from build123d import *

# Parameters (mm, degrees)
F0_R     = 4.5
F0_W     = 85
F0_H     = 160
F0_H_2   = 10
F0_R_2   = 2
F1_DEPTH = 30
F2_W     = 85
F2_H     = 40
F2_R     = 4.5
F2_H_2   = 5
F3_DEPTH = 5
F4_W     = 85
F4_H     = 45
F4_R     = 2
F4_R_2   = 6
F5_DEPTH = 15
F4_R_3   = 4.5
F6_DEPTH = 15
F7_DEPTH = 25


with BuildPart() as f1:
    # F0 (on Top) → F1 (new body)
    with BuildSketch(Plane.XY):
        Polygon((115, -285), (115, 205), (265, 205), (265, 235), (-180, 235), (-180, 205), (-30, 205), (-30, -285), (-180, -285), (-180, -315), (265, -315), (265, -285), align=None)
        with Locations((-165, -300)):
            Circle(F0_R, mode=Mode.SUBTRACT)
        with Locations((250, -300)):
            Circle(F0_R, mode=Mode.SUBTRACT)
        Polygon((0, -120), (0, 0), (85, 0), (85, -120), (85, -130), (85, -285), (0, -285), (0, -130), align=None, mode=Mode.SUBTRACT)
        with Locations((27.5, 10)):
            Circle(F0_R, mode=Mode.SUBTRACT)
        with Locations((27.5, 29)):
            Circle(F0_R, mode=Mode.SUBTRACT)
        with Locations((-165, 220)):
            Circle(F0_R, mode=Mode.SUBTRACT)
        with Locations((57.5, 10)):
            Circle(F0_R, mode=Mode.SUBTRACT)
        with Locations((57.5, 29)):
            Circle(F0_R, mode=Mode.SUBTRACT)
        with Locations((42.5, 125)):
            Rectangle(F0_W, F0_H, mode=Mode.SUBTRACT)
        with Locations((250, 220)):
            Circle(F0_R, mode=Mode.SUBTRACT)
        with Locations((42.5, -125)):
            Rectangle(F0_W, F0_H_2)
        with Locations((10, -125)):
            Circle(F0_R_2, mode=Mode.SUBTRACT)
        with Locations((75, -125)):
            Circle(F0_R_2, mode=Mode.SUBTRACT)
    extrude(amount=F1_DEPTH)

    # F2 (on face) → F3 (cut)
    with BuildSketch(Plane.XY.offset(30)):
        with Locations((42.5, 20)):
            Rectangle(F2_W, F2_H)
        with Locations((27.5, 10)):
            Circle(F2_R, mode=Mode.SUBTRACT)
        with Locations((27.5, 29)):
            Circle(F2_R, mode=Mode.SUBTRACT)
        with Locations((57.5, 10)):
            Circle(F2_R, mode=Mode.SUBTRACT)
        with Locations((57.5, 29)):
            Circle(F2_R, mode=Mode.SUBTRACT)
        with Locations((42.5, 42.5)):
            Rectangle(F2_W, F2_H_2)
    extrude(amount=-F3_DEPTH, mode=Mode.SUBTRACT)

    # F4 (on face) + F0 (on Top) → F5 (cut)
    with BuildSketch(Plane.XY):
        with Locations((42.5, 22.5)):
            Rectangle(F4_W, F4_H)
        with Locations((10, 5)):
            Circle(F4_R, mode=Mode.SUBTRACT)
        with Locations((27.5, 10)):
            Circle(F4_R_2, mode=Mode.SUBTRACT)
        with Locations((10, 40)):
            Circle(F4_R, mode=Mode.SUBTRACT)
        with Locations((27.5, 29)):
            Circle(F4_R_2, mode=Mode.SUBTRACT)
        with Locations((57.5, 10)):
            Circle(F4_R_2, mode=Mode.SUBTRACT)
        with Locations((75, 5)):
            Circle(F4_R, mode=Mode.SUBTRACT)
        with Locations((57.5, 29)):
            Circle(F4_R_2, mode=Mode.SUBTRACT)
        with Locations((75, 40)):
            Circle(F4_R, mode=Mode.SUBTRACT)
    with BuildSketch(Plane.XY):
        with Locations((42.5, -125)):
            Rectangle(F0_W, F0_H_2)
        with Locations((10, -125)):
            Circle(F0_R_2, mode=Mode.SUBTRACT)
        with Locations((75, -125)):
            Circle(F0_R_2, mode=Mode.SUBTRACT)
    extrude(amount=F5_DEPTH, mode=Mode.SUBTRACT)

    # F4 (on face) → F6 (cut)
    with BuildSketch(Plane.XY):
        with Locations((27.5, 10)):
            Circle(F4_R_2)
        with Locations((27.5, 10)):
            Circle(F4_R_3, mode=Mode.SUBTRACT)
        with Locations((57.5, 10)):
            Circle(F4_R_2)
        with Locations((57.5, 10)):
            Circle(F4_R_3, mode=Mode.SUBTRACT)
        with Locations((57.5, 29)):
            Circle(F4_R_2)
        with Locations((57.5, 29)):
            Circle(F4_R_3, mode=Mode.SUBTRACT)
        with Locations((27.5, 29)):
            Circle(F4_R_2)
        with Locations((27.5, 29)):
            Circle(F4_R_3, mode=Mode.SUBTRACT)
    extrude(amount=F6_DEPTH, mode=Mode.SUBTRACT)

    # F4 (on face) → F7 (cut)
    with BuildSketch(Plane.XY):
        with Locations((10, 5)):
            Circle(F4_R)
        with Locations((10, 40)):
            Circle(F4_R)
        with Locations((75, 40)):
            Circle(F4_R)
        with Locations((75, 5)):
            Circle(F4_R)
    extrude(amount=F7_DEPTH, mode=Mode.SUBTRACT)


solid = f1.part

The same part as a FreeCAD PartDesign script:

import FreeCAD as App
import Part
import Sketcher

V = App.Vector

doc = App.newDocument("Part")
body = doc.addObject("PartDesign::Body", "Body")

# Sketch on XY plane
sketch1 = body.newObject("Sketcher::SketchObject", "Sketch")
sketch1.AttachmentSupport = (doc.getObject("XY_Plane"), [""])
sketch1.MapMode = "FlatFace"
sketch1.addGeometry(Part.LineSegment(V(115, -285, 0), V(115, 205, 0)), False)
sketch1.addGeometry(Part.LineSegment(V(115, 205, 0), V(265, 205, 0)), False)
sketch1.addGeometry(Part.LineSegment(V(265, 205, 0), V(265, 235, 0)), False)
sketch1.addGeometry(Part.LineSegment(V(265, 235, 0), V(-180, 235, 0)), False)
sketch1.addGeometry(Part.LineSegment(V(-180, 235, 0), V(-180, 205, 0)), False)
sketch1.addGeometry(Part.LineSegment(V(-180, 205, 0), V(-30, 205, 0)), False)
sketch1.addGeometry(Part.LineSegment(V(-30, 205, 0), V(-30, -285, 0)), False)
sketch1.addGeometry(Part.LineSegment(V(-30, -285, 0), V(-180, -285, 0)), False)
sketch1.addGeometry(Part.LineSegment(V(-180, -285, 0), V(-180, -315, 0)), False)
sketch1.addGeometry(Part.LineSegment(V(-180, -315, 0), V(265, -315, 0)), False)
sketch1.addGeometry(Part.LineSegment(V(265, -315, 0), V(265, -285, 0)), False)
sketch1.addGeometry(Part.LineSegment(V(265, -285, 0), V(115, -285, 0)), False)
sketch1.addGeometry(Part.Circle(V(-165, -300, 0), V(0, 0, 1), 4.5), False)
sketch1.addGeometry(Part.Circle(V(10, -125, 0), V(0, 0, 1), 2), False)
sketch1.addGeometry(Part.LineSegment(V(0, -285, 0), V(0, -130, 0)), False)
sketch1.addGeometry(Part.LineSegment(V(0, -130, 0), V(85, -130, 0)), False)
sketch1.addGeometry(Part.LineSegment(V(85, -130, 0), V(85, -285, 0)), False)
sketch1.addGeometry(Part.LineSegment(V(85, -285, 0), V(0, -285, 0)), False)
sketch1.addGeometry(Part.Circle(V(250, -300, 0), V(0, 0, 1), 4.5), False)
sketch1.addGeometry(Part.Circle(V(75, -125, 0), V(0, 0, 1), 2), False)
sketch1.addGeometry(Part.LineSegment(V(0, -120, 0), V(0, 0, 0)), False)
sketch1.addGeometry(Part.LineSegment(V(0, 0, 0), V(85, 0, 0)), False)
sketch1.addGeometry(Part.LineSegment(V(85, 0, 0), V(85, -120, 0)), False)
sketch1.addGeometry(Part.LineSegment(V(85, -120, 0), V(0, -120, 0)), False)
sketch1.addGeometry(Part.Circle(V(27.5, 10, 0), V(0, 0, 1), 4.5), False)
sketch1.addGeometry(Part.Circle(V(27.5, 29, 0), V(0, 0, 1), 4.5), False)
sketch1.addGeometry(Part.Circle(V(-165, 220, 0), V(0, 0, 1), 4.5), False)
sketch1.addGeometry(Part.Circle(V(57.5, 10, 0), V(0, 0, 1), 4.5), False)
sketch1.addGeometry(Part.Circle(V(57.5, 29, 0), V(0, 0, 1), 4.5), False)
sketch1.addGeometry(Part.LineSegment(V(85, 45, 0), V(0, 45, 0)), False)
sketch1.addGeometry(Part.LineSegment(V(0, 45, 0), V(0, 205, 0)), False)
sketch1.addGeometry(Part.LineSegment(V(0, 205, 0), V(85, 205, 0)), False)
sketch1.addGeometry(Part.LineSegment(V(85, 205, 0), V(85, 45, 0)), False)
sketch1.addGeometry(Part.Circle(V(250, 220, 0), V(0, 0, 1), 4.5), False)
sketch1.addConstraint(Sketcher.Constraint("Coincident", 0, 2, 1, 1))
sketch1.addConstraint(Sketcher.Constraint("Coincident", 1, 2, 2, 1))
sketch1.addConstraint(Sketcher.Constraint("Coincident", 2, 2, 3, 1))
sketch1.addConstraint(Sketcher.Constraint("Coincident", 3, 2, 4, 1))
sketch1.addConstraint(Sketcher.Constraint("Coincident", 4, 2, 5, 1))
sketch1.addConstraint(Sketcher.Constraint("Coincident", 5, 2, 6, 1))
sketch1.addConstraint(Sketcher.Constraint("Coincident", 6, 2, 7, 1))
sketch1.addConstraint(Sketcher.Constraint("Coincident", 7, 2, 8, 1))
sketch1.addConstraint(Sketcher.Constraint("Coincident", 8, 2, 9, 1))
sketch1.addConstraint(Sketcher.Constraint("Coincident", 9, 2, 10, 1))
sketch1.addConstraint(Sketcher.Constraint("Coincident", 10, 2, 11, 1))
sketch1.addConstraint(Sketcher.Constraint("Coincident", 11, 2, 0, 1))
sketch1.addConstraint(Sketcher.Constraint("Coincident", 14, 2, 15, 1))
sketch1.addConstraint(Sketcher.Constraint("Coincident", 15, 2, 16, 1))
sketch1.addConstraint(Sketcher.Constraint("Coincident", 16, 2, 17, 1))
sketch1.addConstraint(Sketcher.Constraint("Coincident", 17, 2, 14, 1))
sketch1.addConstraint(Sketcher.Constraint("Coincident", 20, 2, 21, 1))
sketch1.addConstraint(Sketcher.Constraint("Coincident", 21, 2, 22, 1))
sketch1.addConstraint(Sketcher.Constraint("Coincident", 22, 2, 23, 1))
sketch1.addConstraint(Sketcher.Constraint("Coincident", 23, 2, 20, 1))
sketch1.addConstraint(Sketcher.Constraint("Coincident", 29, 2, 30, 1))
sketch1.addConstraint(Sketcher.Constraint("Coincident", 30, 2, 31, 1))
sketch1.addConstraint(Sketcher.Constraint("Coincident", 31, 2, 32, 1))
sketch1.addConstraint(Sketcher.Constraint("Coincident", 32, 2, 29, 1))
sketch1.addConstraint(Sketcher.Constraint("Vertical", 0))
sketch1.addConstraint(Sketcher.Constraint("Horizontal", 1))
sketch1.addConstraint(Sketcher.Constraint("Vertical", 2))
sketch1.addConstraint(Sketcher.Constraint("Horizontal", 3))
sketch1.addConstraint(Sketcher.Constraint("Vertical", 4))
sketch1.addConstraint(Sketcher.Constraint("Horizontal", 5))
sketch1.addConstraint(Sketcher.Constraint("Vertical", 6))
sketch1.addConstraint(Sketcher.Constraint("Horizontal", 7))
sketch1.addConstraint(Sketcher.Constraint("Vertical", 8))
sketch1.addConstraint(Sketcher.Constraint("Horizontal", 9))
sketch1.addConstraint(Sketcher.Constraint("Vertical", 10))
sketch1.addConstraint(Sketcher.Constraint("Horizontal", 11))
sketch1.addConstraint(Sketcher.Constraint("Vertical", 14))
sketch1.addConstraint(Sketcher.Constraint("Horizontal", 15))
sketch1.addConstraint(Sketcher.Constraint("Vertical", 16))
sketch1.addConstraint(Sketcher.Constraint("Horizontal", 17))
sketch1.addConstraint(Sketcher.Constraint("Vertical", 20))
sketch1.addConstraint(Sketcher.Constraint("Horizontal", 21))
sketch1.addConstraint(Sketcher.Constraint("Vertical", 22))
sketch1.addConstraint(Sketcher.Constraint("Horizontal", 23))
sketch1.addConstraint(Sketcher.Constraint("Horizontal", 29))
sketch1.addConstraint(Sketcher.Constraint("Vertical", 30))
sketch1.addConstraint(Sketcher.Constraint("Horizontal", 31))
sketch1.addConstraint(Sketcher.Constraint("Vertical", 32))
sketch1.addConstraint(Sketcher.Constraint("Coincident", 20, 2, -1, 1))
sketch1.addConstraint(Sketcher.Constraint("Equal", 12, 18))
sketch1.addConstraint(Sketcher.Constraint("Equal", 13, 19))
sketch1.addConstraint(Sketcher.Constraint("Equal", 18, 24))
sketch1.addConstraint(Sketcher.Constraint("Equal", 24, 25))
sketch1.addConstraint(Sketcher.Constraint("Equal", 25, 26))
sketch1.addConstraint(Sketcher.Constraint("Equal", 26, 27))
sketch1.addConstraint(Sketcher.Constraint("Equal", 27, 28))
sketch1.addConstraint(Sketcher.Constraint("Equal", 28, 33))
sketch1.addConstraint(Sketcher.Constraint("PointOnObject", 14, 2, -2))
sketch1.addConstraint(Sketcher.Constraint("PointOnObject", 29, 2, -2))
sketch1.addConstraint(Sketcher.Constraint("Horizontal", 12, 3, 18, 3))
sketch1.addConstraint(Sketcher.Constraint("Horizontal", 13, 3, 19, 3))
sketch1.addConstraint(Sketcher.Constraint("Horizontal", 24, 3, 27, 3))
sketch1.addConstraint(Sketcher.Constraint("Horizontal", 25, 3, 28, 3))
sketch1.addConstraint(Sketcher.Constraint("Horizontal", 26, 3, 33, 3))
sketch1.addConstraint(Sketcher.Constraint("Horizontal", 1, 2, 4, 2))
sketch1.addConstraint(Sketcher.Constraint("Horizontal", 7, 2, 10, 2))
sketch1.addConstraint(Sketcher.Constraint("Horizontal", 11, 2, 16, 2))
sketch1.addConstraint(Sketcher.Constraint("Horizontal", 5, 2, 30, 2))
sketch1.addConstraint(Sketcher.Constraint("Vertical", 24, 3, 25, 3))
sketch1.addConstraint(Sketcher.Constraint("Vertical", 12, 3, 26, 3))
sketch1.addConstraint(Sketcher.Constraint("Vertical", 27, 3, 28, 3))
sketch1.addConstraint(Sketcher.Constraint("Vertical", 18, 3, 33, 3))
sketch1.addConstraint(Sketcher.Constraint("Vertical", 4, 2, 7, 2))
sketch1.addConstraint(Sketcher.Constraint("Vertical", 2, 2, 9, 2))
sketch1.addConstraint(Sketcher.Constraint("Vertical", 16, 2, 21, 2))
sketch1.addConstraint(Sketcher.Constraint("Vertical", 22, 2, 31, 2))
sketch1.addConstraint(Sketcher.Constraint("Equal", 1, 5))
sketch1.addConstraint(Sketcher.Constraint("Equal", 4, 8))
sketch1.addConstraint(Sketcher.Constraint("Diameter", 12, 9.0))
sketch1.addConstraint(Sketcher.Constraint("Diameter", 13, 4.0))
sketch1.addConstraint(Sketcher.Constraint("DistanceX", 1, 1, 1, 2, 150.0))
sketch1.addConstraint(Sketcher.Constraint("DistanceX", 3, 2, 3, 1, 445.0))
sketch1.addConstraint(Sketcher.Constraint("DistanceX", 15, 1, 15, 2, 85.0))
sketch1.addConstraint(Sketcher.Constraint("DistanceY", 0, 1, 0, 2, 490.0))
sketch1.addConstraint(Sketcher.Constraint("DistanceY", 2, 1, 2, 2, 30.0))
sketch1.addConstraint(Sketcher.Constraint("DistanceY", 14, 1, 14, 2, 155.0))
sketch1.addConstraint(Sketcher.Constraint("DistanceY", 20, 1, 20, 2, 120.0))
sketch1.addConstraint(Sketcher.Constraint("DistanceY", 30, 1, 30, 2, 160.0))
sketch1.addConstraint(Sketcher.Constraint("DistanceX", 12, 3, -1, 1, 165.0))
sketch1.addConstraint(Sketcher.Constraint("DistanceY", 12, 3, -1, 1, 300.0))
sketch1.addConstraint(Sketcher.Constraint("DistanceX", -1, 1, 13, 3, 10.0))
sketch1.addConstraint(Sketcher.Constraint("DistanceY", 13, 3, -1, 1, 125.0))
sketch1.addConstraint(Sketcher.Constraint("DistanceX", -1, 1, 18, 3, 250.0))
sketch1.addConstraint(Sketcher.Constraint("DistanceX", -1, 1, 19, 3, 75.0))
sketch1.addConstraint(Sketcher.Constraint("DistanceY", -1, 1, 24, 3, 10.0))
sketch1.addConstraint(Sketcher.Constraint("DistanceY", -1, 1, 25, 3, 29.0))
sketch1.addConstraint(Sketcher.Constraint("DistanceY", -1, 1, 26, 3, 220.0))
sketch1.addConstraint(Sketcher.Constraint("DistanceX", -1, 1, 0, 2, 115.0))
sketch1.addConstraint(Sketcher.Constraint("DistanceY", -1, 1, 0, 2, 205.0))
sketch1.addConstraint(Sketcher.Constraint("DistanceX", 24, 3, 27, 3, 30.0))
sketch1.addConstraint(Sketcher.Constraint("DistanceX", -1, 1, 24, 3, 27.5))
pad1 = body.newObject("PartDesign::Pad", "Pad")
pad1.Profile = sketch1
pad1.Length = 30

# Sketch on XY plane
sketch2 = body.newObject("Sketcher::SketchObject", "Sketch001")
sketch2.AttachmentSupport = (doc.getObject("XY_Plane"), [""])
sketch2.MapMode = "FlatFace"
sketch2.AttachmentOffset = App.Placement(V(0, 0, 30), App.Rotation())
sketch2.addGeometry(Part.LineSegment(V(0, 0, 0), V(85, 0, 0)), False)
sketch2.addGeometry(Part.LineSegment(V(85, 0, 0), V(85, 45, 0)), False)
sketch2.addGeometry(Part.LineSegment(V(85, 45, 0), V(0, 45, 0)), False)
sketch2.addGeometry(Part.LineSegment(V(0, 45, 0), V(0, 0, 0)), False)
sketch2.addGeometry(Part.Circle(V(27.5, 10, 0), V(0, 0, 1), 4.5), False)
sketch2.addGeometry(Part.Circle(V(57.5, 10, 0), V(0, 0, 1), 4.5), False)
sketch2.addGeometry(Part.Circle(V(27.5, 29, 0), V(0, 0, 1), 4.5), False)
sketch2.addGeometry(Part.Circle(V(57.5, 29, 0), V(0, 0, 1), 4.5), False)
sketch2.addConstraint(Sketcher.Constraint("Coincident", 0, 2, 1, 1))
sketch2.addConstraint(Sketcher.Constraint("Coincident", 1, 2, 2, 1))
sketch2.addConstraint(Sketcher.Constraint("Coincident", 2, 2, 3, 1))
sketch2.addConstraint(Sketcher.Constraint("Coincident", 3, 2, 0, 1))
sketch2.addConstraint(Sketcher.Constraint("Horizontal", 0))
sketch2.addConstraint(Sketcher.Constraint("Vertical", 1))
sketch2.addConstraint(Sketcher.Constraint("Horizontal", 2))
sketch2.addConstraint(Sketcher.Constraint("Vertical", 3))
sketch2.addConstraint(Sketcher.Constraint("Coincident", 3, 2, -1, 1))
sketch2.addConstraint(Sketcher.Constraint("Equal", 4, 5))
sketch2.addConstraint(Sketcher.Constraint("Equal", 5, 6))
sketch2.addConstraint(Sketcher.Constraint("Equal", 6, 7))
sketch2.addConstraint(Sketcher.Constraint("Horizontal", 4, 3, 5, 3))
sketch2.addConstraint(Sketcher.Constraint("Horizontal", 6, 3, 7, 3))
sketch2.addConstraint(Sketcher.Constraint("Vertical", 4, 3, 6, 3))
sketch2.addConstraint(Sketcher.Constraint("Vertical", 5, 3, 7, 3))
sketch2.addConstraint(Sketcher.Constraint("Diameter", 4, 9.0))
sketch2.addConstraint(Sketcher.Constraint("DistanceX", 0, 1, 0, 2, 85.0))
sketch2.addConstraint(Sketcher.Constraint("DistanceY", 1, 1, 1, 2, 45.0))
sketch2.addConstraint(Sketcher.Constraint("DistanceY", -1, 1, 4, 3, 10.0))
sketch2.addConstraint(Sketcher.Constraint("DistanceY", -1, 1, 6, 3, 29.0))
sketch2.addConstraint(Sketcher.Constraint("DistanceX", 4, 3, 5, 3, 30.0))
sketch2.addConstraint(Sketcher.Constraint("DistanceX", -1, 1, 4, 3, 27.5))
pocket1 = body.newObject("PartDesign::Pocket", "Pocket")
pocket1.Profile = sketch2
pocket1.Length = 5

# Sketch on XY plane
sketch3 = body.newObject("Sketcher::SketchObject", "Sketch002")
sketch3.AttachmentSupport = (doc.getObject("XY_Plane"), [""])
sketch3.MapMode = "FlatFace"
sketch3.addGeometry(Part.LineSegment(V(0, 45, 0), V(0, 0, 0)), False)
sketch3.addGeometry(Part.LineSegment(V(0, 0, 0), V(85, 0, 0)), False)
sketch3.addGeometry(Part.LineSegment(V(85, 0, 0), V(85, 45, 0)), False)
sketch3.addGeometry(Part.LineSegment(V(85, 45, 0), V(0, 45, 0)), False)
sketch3.addGeometry(Part.Circle(V(10, 5, 0), V(0, 0, 1), 2), False)
sketch3.addGeometry(Part.Circle(V(27.5, 10, 0), V(0, 0, 1), 6), False)
sketch3.addGeometry(Part.Circle(V(57.5, 10, 0), V(0, 0, 1), 6), False)
sketch3.addGeometry(Part.Circle(V(75, 5, 0), V(0, 0, 1), 2), False)
sketch3.addGeometry(Part.Circle(V(27.5, 29, 0), V(0, 0, 1), 6), False)
sketch3.addGeometry(Part.Circle(V(10, 40, 0), V(0, 0, 1), 2), False)
sketch3.addGeometry(Part.Circle(V(57.5, 29, 0), V(0, 0, 1), 6), False)
sketch3.addGeometry(Part.Circle(V(75, 40, 0), V(0, 0, 1), 2), False)
sketch3.addGeometry(Part.LineSegment(V(0, -120, 0), V(0, -130, 0)), False)
sketch3.addGeometry(Part.LineSegment(V(0, -130, 0), V(85, -130, 0)), False)
sketch3.addGeometry(Part.LineSegment(V(85, -130, 0), V(85, -120, 0)), False)
sketch3.addGeometry(Part.LineSegment(V(85, -120, 0), V(0, -120, 0)), False)
sketch3.addGeometry(Part.Circle(V(10, -125, 0), V(0, 0, 1), 2), False)
sketch3.addGeometry(Part.Circle(V(75, -125, 0), V(0, 0, 1), 2), False)
sketch3.addConstraint(Sketcher.Constraint("Coincident", 0, 2, 1, 1))
sketch3.addConstraint(Sketcher.Constraint("Coincident", 1, 2, 2, 1))
sketch3.addConstraint(Sketcher.Constraint("Coincident", 2, 2, 3, 1))
sketch3.addConstraint(Sketcher.Constraint("Coincident", 3, 2, 0, 1))
sketch3.addConstraint(Sketcher.Constraint("Coincident", 12, 2, 13, 1))
sketch3.addConstraint(Sketcher.Constraint("Coincident", 13, 2, 14, 1))
sketch3.addConstraint(Sketcher.Constraint("Coincident", 14, 2, 15, 1))
sketch3.addConstraint(Sketcher.Constraint("Coincident", 15, 2, 12, 1))
sketch3.addConstraint(Sketcher.Constraint("Vertical", 0))
sketch3.addConstraint(Sketcher.Constraint("Horizontal", 1))
sketch3.addConstraint(Sketcher.Constraint("Vertical", 2))
sketch3.addConstraint(Sketcher.Constraint("Horizontal", 3))
sketch3.addConstraint(Sketcher.Constraint("Vertical", 12))
sketch3.addConstraint(Sketcher.Constraint("Horizontal", 13))
sketch3.addConstraint(Sketcher.Constraint("Vertical", 14))
sketch3.addConstraint(Sketcher.Constraint("Horizontal", 15))
sketch3.addConstraint(Sketcher.Constraint("Coincident", 0, 2, -1, 1))
sketch3.addConstraint(Sketcher.Constraint("Equal", 5, 6))
sketch3.addConstraint(Sketcher.Constraint("Equal", 4, 7))
sketch3.addConstraint(Sketcher.Constraint("Equal", 6, 8))
sketch3.addConstraint(Sketcher.Constraint("Equal", 7, 9))
sketch3.addConstraint(Sketcher.Constraint("Equal", 8, 10))
sketch3.addConstraint(Sketcher.Constraint("Equal", 9, 11))
sketch3.addConstraint(Sketcher.Constraint("Equal", 11, 16))
sketch3.addConstraint(Sketcher.Constraint("Equal", 16, 17))
sketch3.addConstraint(Sketcher.Constraint("PointOnObject", 12, 2, -2))
sketch3.addConstraint(Sketcher.Constraint("Horizontal", 5, 3, 6, 3))
sketch3.addConstraint(Sketcher.Constraint("Horizontal", 4, 3, 7, 3))
sketch3.addConstraint(Sketcher.Constraint("Horizontal", 8, 3, 10, 3))
sketch3.addConstraint(Sketcher.Constraint("Horizontal", 9, 3, 11, 3))
sketch3.addConstraint(Sketcher.Constraint("Horizontal", 16, 3, 17, 3))
sketch3.addConstraint(Sketcher.Constraint("Vertical", 5, 3, 8, 3))
sketch3.addConstraint(Sketcher.Constraint("Vertical", 4, 3, 9, 3))
sketch3.addConstraint(Sketcher.Constraint("Vertical", 6, 3, 10, 3))
sketch3.addConstraint(Sketcher.Constraint("Vertical", 7, 3, 11, 3))
sketch3.addConstraint(Sketcher.Constraint("Vertical", 9, 3, 16, 3))
sketch3.addConstraint(Sketcher.Constraint("Vertical", 11, 3, 17, 3))
sketch3.addConstraint(Sketcher.Constraint("Vertical", 2, 2, 13, 2))
sketch3.addConstraint(Sketcher.Constraint("Diameter", 4, 4.0))
sketch3.addConstraint(Sketcher.Constraint("Diameter", 5, 12.0))
sketch3.addConstraint(Sketcher.Constraint("DistanceX", 1, 1, 1, 2, 85.0))
sketch3.addConstraint(Sketcher.Constraint("DistanceY", 0, 2, 0, 1, 45.0))
sketch3.addConstraint(Sketcher.Constraint("DistanceY", 12, 2, 12, 1, 10.0))
sketch3.addConstraint(Sketcher.Constraint("DistanceX", -1, 1, 4, 3, 10.0))
sketch3.addConstraint(Sketcher.Constraint("DistanceY", -1, 1, 4, 3, 5.0))
sketch3.addConstraint(Sketcher.Constraint("DistanceY", -1, 1, 5, 3, 10.0))
sketch3.addConstraint(Sketcher.Constraint("DistanceX", -1, 1, 7, 3, 75.0))
sketch3.addConstraint(Sketcher.Constraint("DistanceY", -1, 1, 8, 3, 29.0))
sketch3.addConstraint(Sketcher.Constraint("DistanceY", -1, 1, 9, 3, 40.0))
sketch3.addConstraint(Sketcher.Constraint("DistanceY", 16, 3, -1, 1, 125.0))
sketch3.addConstraint(Sketcher.Constraint("DistanceY", 12, 2, -1, 1, 130.0))
sketch3.addConstraint(Sketcher.Constraint("DistanceX", 5, 3, 6, 3, 30.0))
sketch3.addConstraint(Sketcher.Constraint("DistanceX", -1, 1, 5, 3, 27.5))
pocket2 = body.newObject("PartDesign::Pocket", "Pocket001")
pocket2.Profile = sketch3
pocket2.Length = 15
pocket2.Reversed = True

# Sketch on XY plane
sketch4 = body.newObject("Sketcher::SketchObject", "Sketch003")
sketch4.AttachmentSupport = (doc.getObject("XY_Plane"), [""])
sketch4.MapMode = "FlatFace"
sketch4.addGeometry(Part.Circle(V(27.5, 10, 0), V(0, 0, 1), 6), False)
sketch4.addGeometry(Part.Circle(V(27.5, 10, 0), V(0, 0, 1), 4.5), False)
sketch4.addGeometry(Part.Circle(V(57.5, 10, 0), V(0, 0, 1), 6), False)
sketch4.addGeometry(Part.Circle(V(57.5, 10, 0), V(0, 0, 1), 4.5), False)
sketch4.addGeometry(Part.Circle(V(57.5, 29, 0), V(0, 0, 1), 6), False)
sketch4.addGeometry(Part.Circle(V(57.5, 29, 0), V(0, 0, 1), 4.5), False)
sketch4.addGeometry(Part.Circle(V(27.5, 29, 0), V(0, 0, 1), 6), False)
sketch4.addGeometry(Part.Circle(V(27.5, 29, 0), V(0, 0, 1), 4.5), False)
sketch4.addConstraint(Sketcher.Constraint("Coincident", 1, 3, 0, 3))
sketch4.addConstraint(Sketcher.Constraint("Coincident", 3, 3, 2, 3))
sketch4.addConstraint(Sketcher.Constraint("Coincident", 5, 3, 4, 3))
sketch4.addConstraint(Sketcher.Constraint("Coincident", 7, 3, 6, 3))
sketch4.addConstraint(Sketcher.Constraint("Equal", 0, 2))
sketch4.addConstraint(Sketcher.Constraint("Equal", 1, 3))
sketch4.addConstraint(Sketcher.Constraint("Equal", 2, 4))
sketch4.addConstraint(Sketcher.Constraint("Equal", 3, 5))
sketch4.addConstraint(Sketcher.Constraint("Equal", 4, 6))
sketch4.addConstraint(Sketcher.Constraint("Equal", 5, 7))
sketch4.addConstraint(Sketcher.Constraint("Horizontal", 1, 3, 2, 3))
sketch4.addConstraint(Sketcher.Constraint("Horizontal", 5, 3, 6, 3))
sketch4.addConstraint(Sketcher.Constraint("Vertical", 3, 3, 4, 3))
sketch4.addConstraint(Sketcher.Constraint("Vertical", 1, 3, 6, 3))
sketch4.addConstraint(Sketcher.Constraint("Diameter", 0, 12.0))
sketch4.addConstraint(Sketcher.Constraint("Diameter", 1, 9.0))
sketch4.addConstraint(Sketcher.Constraint("DistanceY", -1, 1, 0, 3, 10.0))
sketch4.addConstraint(Sketcher.Constraint("DistanceY", -1, 1, 4, 3, 29.0))
sketch4.addConstraint(Sketcher.Constraint("DistanceX", 0, 3, 2, 3, 30.0))
sketch4.addConstraint(Sketcher.Constraint("DistanceX", -1, 1, 0, 3, 27.5))
pocket3 = body.newObject("PartDesign::Pocket", "Pocket002")
pocket3.Profile = sketch4
pocket3.Length = 15
pocket3.Reversed = True

# Sketch on XY plane
sketch5 = body.newObject("Sketcher::SketchObject", "Sketch004")
sketch5.AttachmentSupport = (doc.getObject("XY_Plane"), [""])
sketch5.MapMode = "FlatFace"
sketch5.addGeometry(Part.Circle(V(10, 5, 0), V(0, 0, 1), 2), False)
sketch5.addGeometry(Part.Circle(V(10, 40, 0), V(0, 0, 1), 2), False)
sketch5.addGeometry(Part.Circle(V(75, 40, 0), V(0, 0, 1), 2), False)
sketch5.addGeometry(Part.Circle(V(75, 5, 0), V(0, 0, 1), 2), False)
sketch5.addConstraint(Sketcher.Constraint("Equal", 0, 1))
sketch5.addConstraint(Sketcher.Constraint("Equal", 1, 2))
sketch5.addConstraint(Sketcher.Constraint("Equal", 2, 3))
sketch5.addConstraint(Sketcher.Constraint("Horizontal", 1, 3, 2, 3))
sketch5.addConstraint(Sketcher.Constraint("Horizontal", 0, 3, 3, 3))
sketch5.addConstraint(Sketcher.Constraint("Vertical", 0, 3, 1, 3))
sketch5.addConstraint(Sketcher.Constraint("Vertical", 2, 3, 3, 3))
sketch5.addConstraint(Sketcher.Constraint("Diameter", 0, 4.0))
sketch5.addConstraint(Sketcher.Constraint("DistanceX", -1, 1, 0, 3, 10.0))
sketch5.addConstraint(Sketcher.Constraint("DistanceY", -1, 1, 0, 3, 5.0))
sketch5.addConstraint(Sketcher.Constraint("DistanceY", -1, 1, 1, 3, 40.0))
sketch5.addConstraint(Sketcher.Constraint("DistanceX", -1, 1, 2, 3, 75.0))
pocket4 = body.newObject("PartDesign::Pocket", "Pocket003")
pocket4.Profile = sketch5
pocket4.Length = 25
pocket4.Reversed = True

doc.recompute()
